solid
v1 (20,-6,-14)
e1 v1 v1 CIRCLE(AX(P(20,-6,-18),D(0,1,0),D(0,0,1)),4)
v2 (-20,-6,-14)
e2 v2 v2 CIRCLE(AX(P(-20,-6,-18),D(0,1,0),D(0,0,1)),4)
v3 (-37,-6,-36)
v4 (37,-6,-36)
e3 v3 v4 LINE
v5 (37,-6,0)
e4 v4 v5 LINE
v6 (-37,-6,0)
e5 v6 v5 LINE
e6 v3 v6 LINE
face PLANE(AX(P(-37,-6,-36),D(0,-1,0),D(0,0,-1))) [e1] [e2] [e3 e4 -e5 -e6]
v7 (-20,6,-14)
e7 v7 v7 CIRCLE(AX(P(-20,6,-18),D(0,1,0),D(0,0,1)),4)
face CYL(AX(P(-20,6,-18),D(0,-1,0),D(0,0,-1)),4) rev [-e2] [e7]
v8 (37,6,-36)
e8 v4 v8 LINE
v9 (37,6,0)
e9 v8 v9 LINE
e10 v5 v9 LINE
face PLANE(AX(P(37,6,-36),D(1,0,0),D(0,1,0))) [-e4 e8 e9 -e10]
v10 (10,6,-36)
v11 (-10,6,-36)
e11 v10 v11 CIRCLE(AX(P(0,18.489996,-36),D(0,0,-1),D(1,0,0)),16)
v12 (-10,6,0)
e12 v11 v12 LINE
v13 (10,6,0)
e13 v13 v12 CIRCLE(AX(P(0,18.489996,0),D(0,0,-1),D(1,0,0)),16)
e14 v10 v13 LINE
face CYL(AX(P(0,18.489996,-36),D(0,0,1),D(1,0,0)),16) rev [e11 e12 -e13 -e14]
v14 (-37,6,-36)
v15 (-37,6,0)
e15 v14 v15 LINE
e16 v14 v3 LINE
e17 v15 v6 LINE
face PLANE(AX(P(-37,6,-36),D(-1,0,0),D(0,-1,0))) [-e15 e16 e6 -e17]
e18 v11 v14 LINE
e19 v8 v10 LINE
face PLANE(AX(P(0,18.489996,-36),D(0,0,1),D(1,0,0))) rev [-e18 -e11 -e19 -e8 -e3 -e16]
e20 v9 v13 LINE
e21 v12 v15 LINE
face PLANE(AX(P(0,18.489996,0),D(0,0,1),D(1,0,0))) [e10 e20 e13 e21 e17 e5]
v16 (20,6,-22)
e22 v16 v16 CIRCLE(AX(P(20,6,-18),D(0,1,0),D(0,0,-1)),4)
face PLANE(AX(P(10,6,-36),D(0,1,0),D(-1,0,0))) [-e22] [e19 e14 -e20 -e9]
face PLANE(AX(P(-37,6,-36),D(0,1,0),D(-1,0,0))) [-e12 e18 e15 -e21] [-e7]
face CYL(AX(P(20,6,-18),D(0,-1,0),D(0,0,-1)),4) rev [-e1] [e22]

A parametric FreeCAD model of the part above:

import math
import FreeCAD as App
import Part
import Sketcher
Q = App.Units.Quantity

doc = App.newDocument("Part")
body = doc.addObject("PartDesign::Body", "Body")

# Sketch on XY plane
sketch1 = body.newObject("Sketcher::SketchObject", "Sketch")
sketch1.AttachmentSupport = (doc.getObject("XY_Plane"), [""])
sketch1.MapMode = "FlatFace"
sketch1.addGeometry([
    Part.LineSegment(App.Vector(37, 6, 0), App.Vector(10, 6, 0)),  # 0
    Part.ArcOfCircle(Part.Circle(App.Vector(0, 18, 0), App.Vector(0, 0, 1), 16), math.radians(-129), math.radians(-51)),  # 1
    Part.LineSegment(App.Vector(-10, 6, 0), App.Vector(-37, 6, 0)),  # 2
    Part.LineSegment(App.Vector(-37, 6, 0), App.Vector(-37, -6, 0)),  # 3
    Part.LineSegment(App.Vector(-37, -6, 0), App.Vector(37, -6, 0)),  # 4
    Part.LineSegment(App.Vector(37, -6, 0), App.Vector(37, 6, 0)),  # 5
], False)
sketch1.addConstraint([
    Sketcher.Constraint("Coincident", 0, 2, 1, 2),
    Sketcher.Constraint("Coincident", 1, 1, 2, 1),
    Sketcher.Constraint("Coincident", 2, 2, 3, 1),
    Sketcher.Constraint("Coincident", 3, 2, 4, 1),
    Sketcher.Constraint("Coincident", 4, 2, 5, 1),
    Sketcher.Constraint("Coincident", 5, 2, 0, 1),
    Sketcher.Constraint("Horizontal", 0),
    Sketcher.Constraint("Horizontal", 2),
    Sketcher.Constraint("Vertical", 3),
    Sketcher.Constraint("Horizontal", 4),
    Sketcher.Constraint("Vertical", 5),
    Sketcher.Constraint("Symmetric", 2, 2, 4, 2, -1, 1),
    Sketcher.Constraint("Symmetric", 0, 2, 1, 1, -2),
    Sketcher.Constraint("Radius", 1, Q("16 mm")),
    Sketcher.Constraint("DistanceX", 0, 2, 0, 1, Q("27 mm")),
    Sketcher.Constraint("DistanceX", 4, 1, 4, 2, Q("74 mm")),
    Sketcher.Constraint("DistanceY", 3, 2, 3, 1, Q("12 mm")),
])
pad1 = body.newObject("PartDesign::Pad", "Pad")
pad1.Profile = sketch1
pad1.Length = 36
pad1.Reversed = True

# Sketch on XZ plane
sketch2 = body.newObject("Sketcher::SketchObject", "Sketch001")
sketch2.AttachmentSupport = (doc.getObject("XZ_Plane"), [""])
sketch2.MapMode = "FlatFace"
sketch2.addGeometry([
    Part.Circle(App.Vector(-20, -18, 0), App.Vector(0, 0, 1), 4),
    Part.Circle(App.Vector(20, -18, 0), App.Vector(0, 0, 1), 4),
], False)
sketch2.addConstraint([
    Sketcher.Constraint("Equal", 0, 1),
    Sketcher.Constraint("Symmetric", 0, 3, 1, 3, -2),
    Sketcher.Constraint("Diameter", 0, Q("8 mm")),
    Sketcher.Constraint("DistanceX", 0, 3, -1, 1, Q("20 mm")),
    Sketcher.Constraint("DistanceY", 0, 3, -1, 1, Q("18 mm")),
])
pocket1 = body.newObject("PartDesign::Pocket", "Pocket")
pocket1.Profile = sketch2
pocket1.Type = "ThroughAll"

# Sketch on XZ plane
sketch3 = body.newObject("Sketcher::SketchObject", "Sketch002")
sketch3.AttachmentSupport = (doc.getObject("XZ_Plane"), [""])
sketch3.MapMode = "FlatFace"
sketch3.addGeometry([
    Part.Circle(App.Vector(-20, -18, 0), App.Vector(0, 0, 1), 4),
    Part.Circle(App.Vector(20, -18, 0), App.Vector(0, 0, 1), 4),
], False)
sketch3.addConstraint([
    Sketcher.Constraint("Equal", 0, 1),
    Sketcher.Constraint("Symmetric", 0, 3, 1, 3, -2),
    Sketcher.Constraint("Diameter", 0, Q("8 mm")),
    Sketcher.Constraint("DistanceX", 0, 3, -1, 1, Q("20 mm")),
    Sketcher.Constraint("DistanceY", 0, 3, -1, 1, Q("18 mm")),
])
pocket2 = body.newObject("PartDesign::Pocket", "Pocket001")
pocket2.Profile = sketch3
pocket2.Type = "ThroughAll"
pocket2.Reversed = True

doc.recompute()
